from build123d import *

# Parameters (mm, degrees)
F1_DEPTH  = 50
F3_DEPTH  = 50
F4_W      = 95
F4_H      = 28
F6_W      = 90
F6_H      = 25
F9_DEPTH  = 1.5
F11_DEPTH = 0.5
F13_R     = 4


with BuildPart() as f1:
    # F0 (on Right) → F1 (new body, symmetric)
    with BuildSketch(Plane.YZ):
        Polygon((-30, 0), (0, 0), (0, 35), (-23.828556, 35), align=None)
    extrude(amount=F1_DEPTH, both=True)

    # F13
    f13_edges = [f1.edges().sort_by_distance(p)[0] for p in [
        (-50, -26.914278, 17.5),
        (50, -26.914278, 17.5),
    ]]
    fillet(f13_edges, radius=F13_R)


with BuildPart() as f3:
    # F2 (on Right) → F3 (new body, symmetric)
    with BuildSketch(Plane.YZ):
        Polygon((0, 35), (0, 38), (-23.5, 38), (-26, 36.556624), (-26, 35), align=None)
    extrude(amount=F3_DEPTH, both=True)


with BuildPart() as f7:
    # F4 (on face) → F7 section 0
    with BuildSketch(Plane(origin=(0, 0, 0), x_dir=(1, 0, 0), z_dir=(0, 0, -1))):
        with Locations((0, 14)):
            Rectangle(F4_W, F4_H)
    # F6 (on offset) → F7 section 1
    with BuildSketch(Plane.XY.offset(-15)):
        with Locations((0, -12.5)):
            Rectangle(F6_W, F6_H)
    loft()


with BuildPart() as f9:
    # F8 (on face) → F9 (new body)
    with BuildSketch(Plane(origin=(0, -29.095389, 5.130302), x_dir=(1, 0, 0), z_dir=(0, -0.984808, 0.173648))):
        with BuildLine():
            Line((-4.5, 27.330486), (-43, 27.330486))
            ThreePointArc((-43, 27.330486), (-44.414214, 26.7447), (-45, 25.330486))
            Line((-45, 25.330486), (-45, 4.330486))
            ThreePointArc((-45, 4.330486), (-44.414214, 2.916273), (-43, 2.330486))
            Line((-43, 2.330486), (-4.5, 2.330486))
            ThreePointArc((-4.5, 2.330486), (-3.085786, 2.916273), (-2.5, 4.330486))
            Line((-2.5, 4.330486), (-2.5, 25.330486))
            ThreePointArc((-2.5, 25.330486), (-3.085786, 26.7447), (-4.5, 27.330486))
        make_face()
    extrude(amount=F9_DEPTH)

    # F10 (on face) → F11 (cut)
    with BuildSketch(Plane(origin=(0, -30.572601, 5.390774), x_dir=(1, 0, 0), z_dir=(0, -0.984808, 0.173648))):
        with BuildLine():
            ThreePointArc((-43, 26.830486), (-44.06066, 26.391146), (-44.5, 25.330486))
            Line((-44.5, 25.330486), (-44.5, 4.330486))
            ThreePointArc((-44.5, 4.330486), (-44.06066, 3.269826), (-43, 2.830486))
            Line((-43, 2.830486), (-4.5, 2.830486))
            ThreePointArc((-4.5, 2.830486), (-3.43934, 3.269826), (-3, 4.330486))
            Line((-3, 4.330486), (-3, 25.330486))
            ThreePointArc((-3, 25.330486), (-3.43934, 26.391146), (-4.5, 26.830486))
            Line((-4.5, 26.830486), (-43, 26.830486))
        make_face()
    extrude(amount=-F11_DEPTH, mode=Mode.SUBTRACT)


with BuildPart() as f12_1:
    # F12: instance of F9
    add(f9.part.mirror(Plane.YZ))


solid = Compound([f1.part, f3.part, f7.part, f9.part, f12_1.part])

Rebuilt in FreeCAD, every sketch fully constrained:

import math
import FreeCAD as App
import Part
import Sketcher
Q = App.Units.Quantity


def edges_at(feature, points):
    """Names of the edges that pass closest to the given points."""
    edges = feature.Shape.Edges
    near = lambda p: min(range(len(edges)), key=lambda i: edges[i].distToShape(Part.Vertex(*p))[0])
    return sorted({f"Edge{near(p) + 1}" for p in points})

doc = App.newDocument("Part")
body = doc.addObject("PartDesign::Body", "Body")

sketch1 = body.newObject("Sketcher::SketchObject", "Sketch")
sketch1.AttachmentSupport = (doc.getObject("YZ_Plane"), [""])
sketch1.MapMode = "FlatFace"
sketch1.addGeometry([
    Part.LineSegment(App.Vector(-30, 0, 0), App.Vector(0, 0, 0)),
    Part.LineSegment(App.Vector(0, 0, 0), App.Vector(0, 35, 0)),
    Part.LineSegment(App.Vector(0, 35, 0), App.Vector(-24, 35, 0)),
    Part.LineSegment(App.Vector(-24, 35, 0), App.Vector(-30, 0, 0)),
], False)
sketch1.addConstraint([
    Sketcher.Constraint("Coincident", 0, 2, 1, 1),
    Sketcher.Constraint("Coincident", 1, 2, 2, 1),
    Sketcher.Constraint("Coincident", 2, 2, 3, 1),
    Sketcher.Constraint("Coincident", 3, 2, 0, 1),
    Sketcher.Constraint("Horizontal", 0),
    Sketcher.Constraint("Vertical", 1),
    Sketcher.Constraint("Horizontal", 2),
    Sketcher.Constraint("Coincident", 0, 2, -1, 1),
    Sketcher.Constraint("DistanceX", 0, 1, 0, 2, 30.0),
    Sketcher.Constraint("DistanceY", 1, 1, 1, 2, 35.0),
    Sketcher.Constraint("Angle", 3, Q("-99.999999 deg")),
])
pad1 = body.newObject("PartDesign::Pad", "Pad")
pad1.Profile = sketch1
pad1.Length = 100
pad1.Midplane = True
doc.recompute()

fillet = body.newObject("PartDesign::Fillet", "Fillet")
fillet.Base = (pad1, edges_at(pad1, [(-50, -26.914, 17.5), (50, -26.914, 17.5)]))
fillet.Radius = 4
body2 = doc.addObject("PartDesign::Body", "Body001")

sketch2 = body2.newObject("Sketcher::SketchObject", "Sketch001")
sketch2.AttachmentSupport = (doc.getObject("YZ_Plane001"), [""])
sketch2.MapMode = "FlatFace"
sketch2.addGeometry([
    Part.LineSegment(App.Vector(0, 35, 0), App.Vector(0, 38, 0)),
    Part.LineSegment(App.Vector(0, 38, 0), App.Vector(-23.5, 38, 0)),
    Part.LineSegment(App.Vector(-23.5, 38, 0), App.Vector(-26, 36.6, 0)),
    Part.LineSegment(App.Vector(-26, 36.6, 0), App.Vector(-26, 35, 0)),
    Part.LineSegment(App.Vector(-26, 35, 0), App.Vector(0, 35, 0)),
], False)
sketch2.addConstraint([
    Sketcher.Constraint("Coincident", 0, 2, 1, 1),
    Sketcher.Constraint("Coincident", 1, 2, 2, 1),
    Sketcher.Constraint("Coincident", 2, 2, 3, 1),
    Sketcher.Constraint("Coincident", 3, 2, 4, 1),
    Sketcher.Constraint("Coincident", 4, 2, 0, 1),
    Sketcher.Constraint("Vertical", 0),
    Sketcher.Constraint("Horizontal", 1),
    Sketcher.Constraint("Vertical", 3),
    Sketcher.Constraint("Horizontal", 4),
    Sketcher.Constraint("PointOnObject", 0, 2, -2),
    Sketcher.Constraint("DistanceX", 4, 1, 4, 2, 26.0),
    Sketcher.Constraint("DistanceY", 0, 1, 0, 2, 3.0),
    Sketcher.Constraint("Angle", 2, Q("-149.999994 deg")),
    Sketcher.Constraint("DistanceX", 1, 2, 1, 1, 23.5),
    Sketcher.Constraint("DistanceY", -1, 1, 0, 2, 38.0),
])
pad2 = body2.newObject("PartDesign::Pad", "Pad001")
pad2.Profile = sketch2
pad2.Length = 100
pad2.Midplane = True
body3 = doc.addObject("PartDesign::Body", "Body002")

sketch3 = body3.newObject("Sketcher::SketchObject", "Sketch002")
sketch3.AttachmentSupport = (doc.getObject("XY_Plane002"), [""])
sketch3.MapMode = "FlatFace"
sketch3.addGeometry([
    Part.LineSegment(App.Vector(-48, -28, 0), App.Vector(-48, 0, 0)),
    Part.LineSegment(App.Vector(-48, 0, 0), App.Vector(48, 0, 0)),
    Part.LineSegment(App.Vector(48, 0, 0), App.Vector(48, -28, 0)),
    Part.LineSegment(App.Vector(48, -28, 0), App.Vector(-48, -28, 0)),
], False)
sketch3.addConstraint([
    Sketcher.Constraint("Coincident", 0, 2, 1, 1),
    Sketcher.Constraint("Coincident", 1, 2, 2, 1),
    Sketcher.Constraint("Coincident", 2, 2, 3, 1),
    Sketcher.Constraint("Coincident", 3, 2, 0, 1),
    Sketcher.Constraint("Vertical", 0),
    Sketcher.Constraint("Horizontal", 1),
    Sketcher.Constraint("Vertical", 2),
    Sketcher.Constraint("Horizontal", 3),
    Sketcher.Constraint("Symmetric", 0, 2, 1, 2, -1, 1),
    Sketcher.Constraint("DistanceX", 1, 1, 1, 2, 95.0),
    Sketcher.Constraint("DistanceY", 0, 1, 0, 2, 28.0),
])

sketch4 = body3.newObject("Sketcher::SketchObject", "Sketch003")
sketch4.AttachmentSupport = (doc.getObject("XY_Plane002"), [""])
sketch4.MapMode = "FlatFace"
sketch4.AttachmentOffset = App.Placement(App.Vector(0, 0, -15), App.Rotation())
sketch4.addGeometry([
    Part.LineSegment(App.Vector(-45, 0, 0), App.Vector(-45, -25, 0)),
    Part.LineSegment(App.Vector(-45, -25, 0), App.Vector(45, -25, 0)),
    Part.LineSegment(App.Vector(45, -25, 0), App.Vector(45, 0, 0)),
    Part.LineSegment(App.Vector(45, 0, 0), App.Vector(-45, 0, 0)),
], False)
sketch4.addConstraint([
    Sketcher.Constraint("Coincident", 0, 2, 1, 1),
    Sketcher.Constraint("Coincident", 1, 2, 2, 1),
    Sketcher.Constraint("Coincident", 2, 2, 3, 1),
    Sketcher.Constraint("Coincident", 3, 2, 0, 1),
    Sketcher.Constraint("Vertical", 0),
    Sketcher.Constraint("Horizontal", 1),
    Sketcher.Constraint("Vertical", 2),
    Sketcher.Constraint("Horizontal", 3),
    Sketcher.Constraint("Symmetric", 2, 2, 3, 2, -1, 1),
    Sketcher.Constraint("DistanceX", 1, 1, 1, 2, 90.0),
    Sketcher.Constraint("DistanceY", 0, 2, 0, 1, 25.0),
])

additiveloft = body3.newObject("PartDesign::AdditiveLoft", "AdditiveLoft")
additiveloft.Profile = sketch3
additiveloft.Sections = [sketch4]
body4 = doc.addObject("PartDesign::Body", "Body003")

sketch5 = body4.newObject("Sketcher::SketchObject", "Sketch004")
sketch5.Placement = App.Placement(App.Vector(0, -29.095389, 5.130302), App.Rotation(App.Vector(1, 0, 0), App.Vector(0, 0.173647963, 0.984807791), App.Vector(0, -0.984807791, 0.173647963), "ZXY"))
sketch5.addGeometry([
    Part.LineSegment(App.Vector(-4.5, 27.3, 0), App.Vector(-43, 27.3, 0)),
    Part.ArcOfCircle(Part.Circle(App.Vector(-43, 25.3, 0), App.Vector(0, 0, 1), 2), math.radians(90), math.radians(180)),
    Part.LineSegment(App.Vector(-45, 25.3, 0), App.Vector(-45, 4.3, 0)),
    Part.ArcOfCircle(Part.Circle(App.Vector(-43, 4.3, 0), App.Vector(0, 0, 1), 2), math.radians(-180), math.radians(-90)),
    Part.LineSegment(App.Vector(-43, 2.3, 0), App.Vector(-4.5, 2.3, 0)),
    Part.ArcOfCircle(Part.Circle(App.Vector(-4.5, 4.3, 0), App.Vector(0, 0, 1), 2), math.radians(-90), math.radians(0)),
    Part.LineSegment(App.Vector(-2.5, 4.3, 0), App.Vector(-2.5, 25.3, 0)),
    Part.ArcOfCircle(Part.Circle(App.Vector(-4.5, 25.3, 0), App.Vector(0, 0, 1), 2), math.radians(0), math.radians(90)),
], False)
sketch5.addConstraint([
    Sketcher.Constraint("Tangent", 0, 2, 1, 1),
    Sketcher.Constraint("Tangent", 1, 2, 2, 1),
    Sketcher.Constraint("Tangent", 2, 2, 3, 1),
    Sketcher.Constraint("Tangent", 3, 2, 4, 1),
    Sketcher.Constraint("Tangent", 4, 2, 5, 1),
    Sketcher.Constraint("Tangent", 5, 2, 6, 1),
    Sketcher.Constraint("Tangent", 6, 2, 7, 1),
    Sketcher.Constraint("Tangent", 7, 2, 0, 1),
    Sketcher.Constraint("Horizontal", 0),
    Sketcher.Constraint("Vertical", 2),
    Sketcher.Constraint("Horizontal", 4),
    Sketcher.Constraint("Vertical", 6),
    Sketcher.Constraint("Equal", 1, 3),
    Sketcher.Constraint("Equal", 3, 5),
    Sketcher.Constraint("Equal", 5, 7),
    Sketcher.Constraint("Radius", 1, 1.999999),
    Sketcher.Constraint("DistanceY", 2, 2, 2, 1, 21.0),
    Sketcher.Constraint("DistanceX", 0, 2, 0, 1, 38.5),
    Sketcher.Constraint("DistanceX", 1, 3, -1, 1, 43.000001),
    Sketcher.Constraint("DistanceY", -1, 1, 1, 3, 25.330488),
])
pad3 = body4.newObject("PartDesign::Pad", "Pad002")
pad3.Profile = sketch5
pad3.Length = 1.5

sketch6 = body4.newObject("Sketcher::SketchObject", "Sketch005")
sketch6.Placement = App.Placement(App.Vector(0, -30.572601, 5.390774), App.Rotation(App.Vector(1, 0, 0), App.Vector(0, 0.173647963, 0.984807791), App.Vector(0, -0.984807791, 0.173647963), "ZXY"))
sketch6.addGeometry([
    Part.ArcOfCircle(Part.Circle(App.Vector(-43, 25.3, 0), App.Vector(0, 0, 1), 1.5), math.radians(90), math.radians(180)),
    Part.LineSegment(App.Vector(-44.5, 25.3, 0), App.Vector(-44.5, 4.3, 0)),
    Part.ArcOfCircle(Part.Circle(App.Vector(-43, 4.3, 0), App.Vector(0, 0, 1), 1.5), math.radians(-180), math.radians(-90)),
    Part.LineSegment(App.Vector(-43, 2.8, 0), App.Vector(-4.5, 2.8, 0)),
    Part.ArcOfCircle(Part.Circle(App.Vector(-4.5, 4.3, 0), App.Vector(0, 0, 1), 1.5), math.radians(-90), math.radians(0)),
    Part.LineSegment(App.Vector(-3, 4.3, 0), App.Vector(-3, 25.3, 0)),
    Part.ArcOfCircle(Part.Circle(App.Vector(-4.5, 25.3, 0), App.Vector(0, 0, 1), 1.5), math.radians(0), math.radians(90)),
    Part.LineSegment(App.Vector(-4.5, 26.8, 0), App.Vector(-43, 26.8, 0)),
], False)
sketch6.addConstraint([
    Sketcher.Constraint("Tangent", 0, 2, 1, 1),
    Sketcher.Constraint("Tangent", 1, 2, 2, 1),
    Sketcher.Constraint("Tangent", 2, 2, 3, 1),
    Sketcher.Constraint("Tangent", 3, 2, 4, 1),
    Sketcher.Constraint("Tangent", 4, 2, 5, 1),
    Sketcher.Constraint("Tangent", 5, 2, 6, 1),
    Sketcher.Constraint("Tangent", 6, 2, 7, 1),
    Sketcher.Constraint("Tangent", 7, 2, 0, 1),
    Sketcher.Constraint("Vertical", 1),
    Sketcher.Constraint("Horizontal", 3),
    Sketcher.Constraint("Vertical", 5),
    Sketcher.Constraint("Horizontal", 7),
    Sketcher.Constraint("Equal", 0, 2),
    Sketcher.Constraint("Equal", 2, 4),
    Sketcher.Constraint("Equal", 4, 6),
    Sketcher.Constraint("Radius", 0, 1.500001),
    Sketcher.Constraint("DistanceY", 1, 2, 1, 1, 21.0),
    Sketcher.Constraint("DistanceX", 3, 1, 3, 2, 38.5),
    Sketcher.Constraint("DistanceX", 0, 3, -1, 1, 42.999999),
    Sketcher.Constraint("DistanceY", -1, 1, 0, 3, 25.330485),
])
pocket1 = body4.newObject("PartDesign::Pocket", "Pocket")
pocket1.Profile = sketch6
pocket1.Length = 0.5
body5 = doc.addObject("PartDesign::Body", "Body004")
doc.recompute()

mirroring = doc.addObject("Part::Mirroring", "Mirroring")
mirroring.Source = body4
mirroring.Base = App.Vector(0, 0, 0)
mirroring.Normal = App.Vector(1, 0, 0)
body5.BaseFeature = mirroring
doc.recompute()
mirroring.Visibility = False

doc.recompute()
